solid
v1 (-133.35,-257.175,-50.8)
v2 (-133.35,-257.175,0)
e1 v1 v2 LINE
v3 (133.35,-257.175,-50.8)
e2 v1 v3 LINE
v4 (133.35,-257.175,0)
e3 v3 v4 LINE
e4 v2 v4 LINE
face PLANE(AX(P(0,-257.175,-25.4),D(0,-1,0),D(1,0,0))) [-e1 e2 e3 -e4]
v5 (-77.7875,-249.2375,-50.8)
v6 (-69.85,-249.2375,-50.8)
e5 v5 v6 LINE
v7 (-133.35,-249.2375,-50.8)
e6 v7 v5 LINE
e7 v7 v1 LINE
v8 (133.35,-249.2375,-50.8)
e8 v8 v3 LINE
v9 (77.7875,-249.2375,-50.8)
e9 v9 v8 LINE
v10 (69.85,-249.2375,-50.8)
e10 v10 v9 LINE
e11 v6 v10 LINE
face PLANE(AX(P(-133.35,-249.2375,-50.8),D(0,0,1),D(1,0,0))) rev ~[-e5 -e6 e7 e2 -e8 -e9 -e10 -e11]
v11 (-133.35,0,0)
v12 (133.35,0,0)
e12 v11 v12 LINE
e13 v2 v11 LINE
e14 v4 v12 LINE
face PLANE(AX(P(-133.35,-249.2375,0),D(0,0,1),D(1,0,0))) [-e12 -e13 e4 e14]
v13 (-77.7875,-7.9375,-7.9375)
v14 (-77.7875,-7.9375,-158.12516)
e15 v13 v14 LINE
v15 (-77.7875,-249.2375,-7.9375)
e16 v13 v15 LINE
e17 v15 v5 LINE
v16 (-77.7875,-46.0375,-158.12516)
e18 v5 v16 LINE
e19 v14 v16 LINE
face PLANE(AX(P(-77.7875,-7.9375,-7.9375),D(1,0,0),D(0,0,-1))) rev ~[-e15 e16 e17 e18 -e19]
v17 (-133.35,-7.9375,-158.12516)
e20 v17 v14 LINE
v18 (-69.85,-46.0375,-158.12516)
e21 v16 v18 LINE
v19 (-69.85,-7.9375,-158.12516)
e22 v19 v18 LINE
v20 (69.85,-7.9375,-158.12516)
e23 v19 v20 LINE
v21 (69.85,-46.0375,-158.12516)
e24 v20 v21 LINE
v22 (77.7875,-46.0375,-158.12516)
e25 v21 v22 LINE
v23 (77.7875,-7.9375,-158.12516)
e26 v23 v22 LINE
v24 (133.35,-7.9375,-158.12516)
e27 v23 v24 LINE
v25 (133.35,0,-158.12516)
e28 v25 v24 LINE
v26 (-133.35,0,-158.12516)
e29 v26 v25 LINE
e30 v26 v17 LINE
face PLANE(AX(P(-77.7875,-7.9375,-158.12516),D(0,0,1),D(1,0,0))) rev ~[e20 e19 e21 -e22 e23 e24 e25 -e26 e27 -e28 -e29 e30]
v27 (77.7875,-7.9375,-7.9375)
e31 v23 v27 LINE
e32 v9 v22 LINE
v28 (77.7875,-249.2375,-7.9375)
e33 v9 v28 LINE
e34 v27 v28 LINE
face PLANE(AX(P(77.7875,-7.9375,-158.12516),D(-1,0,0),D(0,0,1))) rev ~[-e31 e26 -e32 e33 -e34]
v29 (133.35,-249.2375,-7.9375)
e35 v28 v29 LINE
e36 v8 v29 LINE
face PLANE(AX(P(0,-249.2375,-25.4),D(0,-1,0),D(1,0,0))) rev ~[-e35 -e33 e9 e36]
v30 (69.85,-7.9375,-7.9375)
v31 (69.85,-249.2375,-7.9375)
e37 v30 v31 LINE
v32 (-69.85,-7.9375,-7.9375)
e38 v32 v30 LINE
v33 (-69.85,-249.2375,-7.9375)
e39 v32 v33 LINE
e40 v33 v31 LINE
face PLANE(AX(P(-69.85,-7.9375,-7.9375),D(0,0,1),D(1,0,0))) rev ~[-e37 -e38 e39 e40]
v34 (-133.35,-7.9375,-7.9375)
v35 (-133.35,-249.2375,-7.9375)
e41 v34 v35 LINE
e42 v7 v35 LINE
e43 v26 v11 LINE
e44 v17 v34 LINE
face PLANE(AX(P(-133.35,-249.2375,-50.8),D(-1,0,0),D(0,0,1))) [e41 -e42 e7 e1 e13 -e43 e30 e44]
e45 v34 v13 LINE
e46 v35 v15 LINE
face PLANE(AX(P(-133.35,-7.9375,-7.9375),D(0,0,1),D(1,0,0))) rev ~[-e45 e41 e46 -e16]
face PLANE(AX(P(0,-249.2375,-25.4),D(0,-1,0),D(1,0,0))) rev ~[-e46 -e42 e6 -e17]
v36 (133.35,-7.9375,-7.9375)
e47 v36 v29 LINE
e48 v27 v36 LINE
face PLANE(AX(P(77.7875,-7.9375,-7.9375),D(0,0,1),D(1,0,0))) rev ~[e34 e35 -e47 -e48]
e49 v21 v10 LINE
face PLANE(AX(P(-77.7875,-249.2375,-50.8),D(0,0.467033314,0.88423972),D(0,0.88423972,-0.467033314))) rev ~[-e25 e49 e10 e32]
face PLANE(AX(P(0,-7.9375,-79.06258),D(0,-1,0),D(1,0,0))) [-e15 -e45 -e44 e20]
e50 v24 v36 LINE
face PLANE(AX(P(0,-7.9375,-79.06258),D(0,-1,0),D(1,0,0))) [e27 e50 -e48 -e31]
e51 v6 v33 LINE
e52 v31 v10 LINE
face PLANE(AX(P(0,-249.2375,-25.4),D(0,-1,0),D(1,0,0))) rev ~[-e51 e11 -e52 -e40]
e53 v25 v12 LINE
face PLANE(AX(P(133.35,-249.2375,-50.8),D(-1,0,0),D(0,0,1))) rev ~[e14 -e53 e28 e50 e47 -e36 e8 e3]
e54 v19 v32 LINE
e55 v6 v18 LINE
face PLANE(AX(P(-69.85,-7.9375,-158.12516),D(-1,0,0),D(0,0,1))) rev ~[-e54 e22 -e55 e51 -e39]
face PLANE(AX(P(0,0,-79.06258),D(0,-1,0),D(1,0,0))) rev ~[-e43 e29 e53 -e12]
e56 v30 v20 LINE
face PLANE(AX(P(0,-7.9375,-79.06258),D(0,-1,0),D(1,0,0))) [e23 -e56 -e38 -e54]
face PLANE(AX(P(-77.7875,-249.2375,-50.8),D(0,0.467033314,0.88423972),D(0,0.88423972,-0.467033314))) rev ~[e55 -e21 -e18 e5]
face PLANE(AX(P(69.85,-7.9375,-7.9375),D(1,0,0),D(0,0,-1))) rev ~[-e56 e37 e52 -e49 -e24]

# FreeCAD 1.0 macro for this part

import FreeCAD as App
import Part
import Sketcher
Q = App.Units.Quantity

doc = App.newDocument("Part")
body = doc.addObject("PartDesign::Body", "Body")

# Sketch on XZ plane
sketch1 = doc.addObject("Sketcher::SketchObject", "Sketch")
body.addObject(sketch1)
sketch1.AttachmentSupport = (doc.XZ_Plane, [""])
sketch1.MapMode = "FlatFace"
sketch1.addGeometry(Part.LineSegment(App.Vector(-133, 0, 0), App.Vector(-133, -158, 0)), False)
sketch1.addGeometry(Part.LineSegment(App.Vector(-133, -158, 0), App.Vector(133, -158, 0)), False)
sketch1.addGeometry(Part.LineSegment(App.Vector(133, -158, 0), App.Vector(133, 0, 0)), False)
sketch1.addGeometry(Part.LineSegment(App.Vector(133, 0, 0), App.Vector(-133, 0, 0)), False)
sketch1.addConstraint(Sketcher.Constraint("Coincident", 0, 2, 1, 1))
sketch1.addConstraint(Sketcher.Constraint("Coincident", 1, 2, 2, 1))
sketch1.addConstraint(Sketcher.Constraint("Coincident", 2, 2, 3, 1))
sketch1.addConstraint(Sketcher.Constraint("Coincident", 3, 2, 0, 1))
sketch1.addConstraint(Sketcher.Constraint("Vertical", 0))
sketch1.addConstraint(Sketcher.Constraint("Horizontal", 1))
sketch1.addConstraint(Sketcher.Constraint("Vertical", 2))
sketch1.addConstraint(Sketcher.Constraint("Horizontal", 3))
sketch1.addConstraint(Sketcher.Constraint("Symmetric", 2, 2, 3, 2, -1, 1))
sketch1.addConstraint(Sketcher.Constraint("DistanceX", 1, 1, 1, 2, Q("10.5 in")))
sketch1.addConstraint(Sketcher.Constraint("DistanceY", 0, 2, 0, 1, Q("6.2254 in")))
pad1 = doc.addObject("PartDesign::Pad", "Pad")
body.addObject(pad1)
pad1.Profile = sketch1
pad1.Length = Q("0.3125 in")

# Sketch on XZ plane
sketch2 = doc.addObject("Sketcher::SketchObject", "Sketch001")
body.addObject(sketch2)
sketch2.AttachmentSupport = (doc.XZ_Plane, [""])
sketch2.MapMode = "FlatFace"
sketch2.AttachmentOffset = App.Placement(App.Vector(0, 0, 0.3125 * 25.4), App.Rotation())
sketch2.addGeometry(Part.LineSegment(App.Vector(133, 0, 0), App.Vector(-133, 0, 0)), False)
sketch2.addGeometry(Part.LineSegment(App.Vector(-133, 0, 0), App.Vector(-133, -8, 0)), False)
sketch2.addGeometry(Part.LineSegment(App.Vector(-133, -8, 0), App.Vector(-78, -8, 0)), False)
sketch2.addGeometry(Part.LineSegment(App.Vector(-78, -8, 0), App.Vector(-78, -158, 0)), False)
sketch2.addGeometry(Part.LineSegment(App.Vector(-78, -158, 0), App.Vector(-70, -158, 0)), False)
sketch2.addGeometry(Part.LineSegment(App.Vector(-70, -158, 0), App.Vector(-70, -8, 0)), False)
sketch2.addGeometry(Part.LineSegment(App.Vector(-70, -8, 0), App.Vector(70, -8, 0)), False)
sketch2.addGeometry(Part.LineSegment(App.Vector(70, -8, 0), App.Vector(70, -158, 0)), False)
sketch2.addGeometry(Part.LineSegment(App.Vector(70, -158, 0), App.Vector(78, -158, 0)), False)
sketch2.addGeometry(Part.LineSegment(App.Vector(78, -158, 0), App.Vector(78, -8, 0)), False)
sketch2.addGeometry(Part.LineSegment(App.Vector(78, -8, 0), App.Vector(133, -8, 0)), False)
sketch2.addGeometry(Part.LineSegment(App.Vector(133, -8, 0), App.Vector(133, 0, 0)), False)
sketch2.addConstraint(Sketcher.Constraint("Coincident", 0, 2, 1, 1))
sketch2.addConstraint(Sketcher.Constraint("Coincident", 1, 2, 2, 1))
sketch2.addConstraint(Sketcher.Constraint("Coincident", 2, 2, 3, 1))
sketch2.addConstraint(Sketcher.Constraint("Coincident", 3, 2, 4, 1))
sketch2.addConstraint(Sketcher.Constraint("Coincident", 4, 2, 5, 1))
sketch2.addConstraint(Sketcher.Constraint("Coincident", 5, 2, 6, 1))
sketch2.addConstraint(Sketcher.Constraint("Coincident", 6, 2, 7, 1))
sketch2.addConstraint(Sketcher.Constraint("Coincident", 7, 2, 8, 1))
sketch2.addConstraint(Sketcher.Constraint("Coincident", 8, 2, 9, 1))
sketch2.addConstraint(Sketcher.Constraint("Coincident", 9, 2, 10, 1))
sketch2.addConstraint(Sketcher.Constraint("Coincident", 10, 2, 11, 1))
sketch2.addConstraint(Sketcher.Constraint("Coincident", 11, 2, 0, 1))
sketch2.addConstraint(Sketcher.Constraint("Horizontal", 0))
sketch2.addConstraint(Sketcher.Constraint("Vertical", 1))
sketch2.addConstraint(Sketcher.Constraint("Horizontal", 2))
sketch2.addConstraint(Sketcher.Constraint("Vertical", 3))
sketch2.addConstraint(Sketcher.Constraint("Horizontal", 4))
sketch2.addConstraint(Sketcher.Constraint("Vertical", 5))
sketch2.addConstraint(Sketcher.Constraint("Horizontal", 6))
sketch2.addConstraint(Sketcher.Constraint("Vertical", 7))
sketch2.addConstraint(Sketcher.Constraint("Horizontal", 8))
sketch2.addConstraint(Sketcher.Constraint("Vertical", 9))
sketch2.addConstraint(Sketcher.Constraint("Horizontal", 10))
sketch2.addConstraint(Sketcher.Constraint("Vertical", 11))
sketch2.addConstraint(Sketcher.Constraint("Symmetric", 0, 2, 11, 2, -1, 1))
sketch2.addConstraint(Sketcher.Constraint("Symmetric", 4, 2, 7, 2, -2))
sketch2.addConstraint(Sketcher.Constraint("Symmetric", 2, 2, 9, 2, -2))
sketch2.addConstraint(Sketcher.Constraint("Horizontal", 2, 2, 5, 2))
sketch2.addConstraint(Sketcher.Constraint("Equal", 8, 1))
sketch2.addConstraint(Sketcher.Constraint("DistanceX", 0, 2, 0, 1, Q("10.5 in")))
sketch2.addConstraint(Sketcher.Constraint("DistanceX", 6, 1, 6, 2, Q("5.5 in")))
sketch2.addConstraint(Sketcher.Constraint("DistanceX", 2, 1, 2, 2, Q("2.1875 in")))
sketch2.addConstraint(Sketcher.Constraint("DistanceY", 3, 2, 3, 1, Q("5.9129 in")))
pad2 = doc.addObject("PartDesign::Pad", "Pad001")
body.addObject(pad2)
pad2.Profile = sketch2
pad2.Length = Q("9.5 in")

# Sketch on YZ plane
sketch3 = doc.addObject("Sketcher::SketchObject", "Sketch002")
body.addObject(sketch3)
sketch3.AttachmentSupport = (doc.YZ_Plane, [""])
sketch3.MapMode = "FlatFace"
sketch3.AttachmentOffset = App.Placement(App.Vector(0, 0, -3.0625 * 25.4), App.Rotation())
sketch3.addGeometry(Part.LineSegment(App.Vector(-249, -51, 0), App.Vector(-46, -158, 0)), False)
sketch3.addGeometry(Part.LineSegment(App.Vector(-46, -158, 0), App.Vector(-249, -158, 0)), False)
sketch3.addGeometry(Part.LineSegment(App.Vector(-249, -158, 0), App.Vector(-249, -51, 0)), False)
sketch3.addConstraint(Sketcher.Constraint("Coincident", 0, 2, 1, 1))
sketch3.addConstraint(Sketcher.Constraint("Coincident", 1, 2, 2, 1))
sketch3.addConstraint(Sketcher.Constraint("Coincident", 2, 2, 0, 1))
sketch3.addConstraint(Sketcher.Constraint("Horizontal", 1))
sketch3.addConstraint(Sketcher.Constraint("Vertical", 2))
sketch3.addConstraint(Sketcher.Constraint("DistanceX", 1, 2, 1, 1, Q("8 in")))
sketch3.addConstraint(Sketcher.Constraint("DistanceY", 2, 2, -1, 1, Q("2 in")))
sketch3.addConstraint(Sketcher.Constraint("DistanceY", 2, 1, 2, 2, Q("4.2254 in")))
sketch3.addConstraint(Sketcher.Constraint("DistanceX", 0, 2, -1, 1, Q("1.8125 in")))
pocket1 = doc.addObject("PartDesign::Pocket", "Pocket")
body.addObject(pocket1)
pocket1.Profile = sketch3
pocket1.Type = "ThroughAll"
pocket1.Reversed = True

# Sketch on XZ plane
sketch4 = doc.addObject("Sketcher::SketchObject", "Sketch003")
body.addObject(sketch4)
sketch4.AttachmentSupport = (doc.XZ_Plane, [""])
sketch4.MapMode = "FlatFace"
sketch4.AttachmentOffset = App.Placement(App.Vector(0, 0, 9.8125 * 25.4), App.Rotation())
sketch4.addGeometry(Part.LineSegment(App.Vector(-133, 0, 0), App.Vector(-133, -51, 0)), False)
sketch4.addGeometry(Part.LineSegment(App.Vector(-133, -51, 0), App.Vector(133, -51, 0)), False)
sketch4.addGeometry(Part.LineSegment(App.Vector(133, -51, 0), App.Vector(133, 0, 0)), False)
sketch4.addGeometry(Part.LineSegment(App.Vector(133, 0, 0), App.Vector(-133, 0, 0)), False)
sketch4.addConstraint(Sketcher.Constraint("Coincident", 0, 2, 1, 1))
sketch4.addConstraint(Sketcher.Constraint("Coincident", 1, 2, 2, 1))
sketch4.addConstraint(Sketcher.Constraint("Coincident", 2, 2, 3, 1))
sketch4.addConstraint(Sketcher.Constraint("Coincident", 3, 2, 0, 1))
sketch4.addConstraint(Sketcher.Constraint("Vertical", 0))
sketch4.addConstraint(Sketcher.Constraint("Horizontal", 1))
sketch4.addConstraint(Sketcher.Constraint("Vertical", 2))
sketch4.addConstraint(Sketcher.Constraint("Horizontal", 3))
sketch4.addConstraint(Sketcher.Constraint("Symmetric", 2, 2, 3, 2, -1, 1))
sketch4.addConstraint(Sketcher.Constraint("DistanceY", 0, 2, 0, 1, Q("2 in")))
sketch4.addConstraint(Sketcher.Constraint("DistanceX", 1, 1, 1, 2, Q("10.5 in")))
pad3 = doc.addObject("PartDesign::Pad", "Pad002")
body.addObject(pad3)
pad3.Profile = sketch4
pad3.Length = Q("0.3125 in")

doc.recompute()
